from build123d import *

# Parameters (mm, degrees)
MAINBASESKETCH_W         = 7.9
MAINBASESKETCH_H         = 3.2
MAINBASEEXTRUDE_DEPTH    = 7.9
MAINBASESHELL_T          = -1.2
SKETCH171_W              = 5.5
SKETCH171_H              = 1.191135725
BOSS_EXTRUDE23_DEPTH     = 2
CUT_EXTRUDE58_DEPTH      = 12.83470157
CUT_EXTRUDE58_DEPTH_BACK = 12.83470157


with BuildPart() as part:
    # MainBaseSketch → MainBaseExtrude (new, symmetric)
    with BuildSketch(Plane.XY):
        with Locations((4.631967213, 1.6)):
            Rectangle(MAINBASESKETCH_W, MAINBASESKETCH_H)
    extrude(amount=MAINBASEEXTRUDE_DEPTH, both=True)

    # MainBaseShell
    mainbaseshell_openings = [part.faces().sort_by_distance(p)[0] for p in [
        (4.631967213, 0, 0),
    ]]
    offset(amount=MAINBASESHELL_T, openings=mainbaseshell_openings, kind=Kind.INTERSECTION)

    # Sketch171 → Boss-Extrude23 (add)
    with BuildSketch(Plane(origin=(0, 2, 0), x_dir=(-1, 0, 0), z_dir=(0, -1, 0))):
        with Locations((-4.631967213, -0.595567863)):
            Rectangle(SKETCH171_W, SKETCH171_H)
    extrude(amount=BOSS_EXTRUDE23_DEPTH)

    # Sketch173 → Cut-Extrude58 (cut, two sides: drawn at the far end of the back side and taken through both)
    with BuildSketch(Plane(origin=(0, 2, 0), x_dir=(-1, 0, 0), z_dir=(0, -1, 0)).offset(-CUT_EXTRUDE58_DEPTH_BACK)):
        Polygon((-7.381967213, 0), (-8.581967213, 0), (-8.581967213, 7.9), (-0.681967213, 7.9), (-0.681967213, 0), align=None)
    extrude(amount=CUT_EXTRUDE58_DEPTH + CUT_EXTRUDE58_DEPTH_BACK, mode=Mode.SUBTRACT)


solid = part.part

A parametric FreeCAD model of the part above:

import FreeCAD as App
import Part
import Sketcher
Q = App.Units.Quantity


def faces_at(feature, points):
    """Names of the faces that lie closest to the given points."""
    faces = feature.Shape.Faces
    near = lambda p: min(range(len(faces)), key=lambda i: faces[i].distToShape(Part.Vertex(*p))[0])
    return sorted({f"Face{near(p) + 1}" for p in points})


def add_polygon(sketch, points):
    """Adds a closed chain of lines whose ends are joined by coincident constraints."""
    first, n = sketch.GeometryCount, len(points)
    for a, b in zip(points, points[1:] + points[:1]):
        sketch.addGeometry(Part.LineSegment(App.Vector(*a, 0), App.Vector(*b, 0)), False)
    for i in range(n):
        sketch.addConstraint(Sketcher.Constraint("Coincident", first + i, 2, first + (i + 1) % n, 1))

doc = App.newDocument("Part")
body = doc.addObject("PartDesign::Body", "Body")

sketch1 = body.newObject("Sketcher::SketchObject", "Sketch")
sketch1.AttachmentSupport = (doc.getObject("XY_Plane"), [""])
sketch1.MapMode = "FlatFace"
add_polygon(sketch1, [(0.681967, 3.2), (0.681967, 0), (8.581967, 0), (8.581967, 3.2)])
sketch1.addConstraint(Sketcher.Constraint("Vertical", 0))
sketch1.addConstraint(Sketcher.Constraint("Horizontal", 1))
sketch1.addConstraint(Sketcher.Constraint("Vertical", 2))
sketch1.addConstraint(Sketcher.Constraint("Horizontal", 3))
sketch1.addConstraint(Sketcher.Constraint("PointOnObject", 0, 2, -1))
sketch1.addConstraint(Sketcher.Constraint("DistanceX", 1, 1, 1, 2, Q("7.9 mm")))
sketch1.addConstraint(Sketcher.Constraint("DistanceY", 0, 2, 0, 1, Q("3.2 mm")))
sketch1.addConstraint(Sketcher.Constraint("DistanceX", -1, 1, 0, 2, Q("0.681967 mm")))
pad1 = body.newObject("PartDesign::Pad", "Pad")
pad1.Profile = sketch1
pad1.Length = 15.8
pad1.Midplane = True
doc.recompute()

thickness = body.newObject("PartDesign::Thickness", "Thickness")
thickness.Base = (pad1, faces_at(pad1, [(4.632, 0, 0)]))
thickness.Value = 1.2
thickness.Reversed = True
thickness.Join = "Intersection"

sketch2 = body.newObject("Sketcher::SketchObject", "Sketch001")
sketch2.AttachmentSupport = (doc.getObject("XZ_Plane"), [""])
sketch2.MapMode = "FlatFace"
sketch2.AttachmentOffset = App.Placement(App.Vector(0, 0, -2), App.Rotation())
add_polygon(sketch2, [(7.381967, 0), (7.381967, 1.191136), (1.881967, 1.191136), (1.881967, 0)])
sketch2.addConstraint(Sketcher.Constraint("Vertical", 0))
sketch2.addConstraint(Sketcher.Constraint("Horizontal", 1))
sketch2.addConstraint(Sketcher.Constraint("Vertical", 2))
sketch2.addConstraint(Sketcher.Constraint("Horizontal", 3))
sketch2.addConstraint(Sketcher.Constraint("PointOnObject", 2, 2, -1))
sketch2.addConstraint(Sketcher.Constraint("DistanceX", 1, 2, 1, 1, Q("5.5 mm")))
sketch2.addConstraint(Sketcher.Constraint("DistanceY", 0, 1, 0, 2, Q("1.191136 mm")))
sketch2.addConstraint(Sketcher.Constraint("DistanceX", -1, 1, 0, 2, Q("7.381967 mm")))
pad2 = body.newObject("PartDesign::Pad", "Pad001")
pad2.Profile = sketch2
pad2.Length = 2

sketch3 = body.newObject("Sketcher::SketchObject", "Sketch002")
sketch3.AttachmentSupport = (doc.getObject("XZ_Plane"), [""])
sketch3.MapMode = "FlatFace"
sketch3.AttachmentOffset = App.Placement(App.Vector(0, 0, -2), App.Rotation())
add_polygon(sketch3, [(8.581967, 0), (0.681967, 0), (0.681967, -7.9), (8.581967, -7.9)])
sketch3.addConstraint(Sketcher.Constraint("Horizontal", 0))
sketch3.addConstraint(Sketcher.Constraint("Vertical", 1))
sketch3.addConstraint(Sketcher.Constraint("Horizontal", 2))
sketch3.addConstraint(Sketcher.Constraint("Vertical", 3))
sketch3.addConstraint(Sketcher.Constraint("PointOnObject", 0, 2, -1))
sketch3.addConstraint(Sketcher.Constraint("Equal", 2, 1))
sketch3.addConstraint(Sketcher.Constraint("DistanceX", 0, 2, 0, 1, Q("7.9 mm")))
sketch3.addConstraint(Sketcher.Constraint("DistanceX", -1, 1, 0, 2, Q("0.681967 mm")))
pocket1 = body.newObject("PartDesign::Pocket", "Pocket")
pocket1.Profile = sketch3
pocket1.Type = "ThroughAll"
pocket1.Midplane = True

doc.recompute()
